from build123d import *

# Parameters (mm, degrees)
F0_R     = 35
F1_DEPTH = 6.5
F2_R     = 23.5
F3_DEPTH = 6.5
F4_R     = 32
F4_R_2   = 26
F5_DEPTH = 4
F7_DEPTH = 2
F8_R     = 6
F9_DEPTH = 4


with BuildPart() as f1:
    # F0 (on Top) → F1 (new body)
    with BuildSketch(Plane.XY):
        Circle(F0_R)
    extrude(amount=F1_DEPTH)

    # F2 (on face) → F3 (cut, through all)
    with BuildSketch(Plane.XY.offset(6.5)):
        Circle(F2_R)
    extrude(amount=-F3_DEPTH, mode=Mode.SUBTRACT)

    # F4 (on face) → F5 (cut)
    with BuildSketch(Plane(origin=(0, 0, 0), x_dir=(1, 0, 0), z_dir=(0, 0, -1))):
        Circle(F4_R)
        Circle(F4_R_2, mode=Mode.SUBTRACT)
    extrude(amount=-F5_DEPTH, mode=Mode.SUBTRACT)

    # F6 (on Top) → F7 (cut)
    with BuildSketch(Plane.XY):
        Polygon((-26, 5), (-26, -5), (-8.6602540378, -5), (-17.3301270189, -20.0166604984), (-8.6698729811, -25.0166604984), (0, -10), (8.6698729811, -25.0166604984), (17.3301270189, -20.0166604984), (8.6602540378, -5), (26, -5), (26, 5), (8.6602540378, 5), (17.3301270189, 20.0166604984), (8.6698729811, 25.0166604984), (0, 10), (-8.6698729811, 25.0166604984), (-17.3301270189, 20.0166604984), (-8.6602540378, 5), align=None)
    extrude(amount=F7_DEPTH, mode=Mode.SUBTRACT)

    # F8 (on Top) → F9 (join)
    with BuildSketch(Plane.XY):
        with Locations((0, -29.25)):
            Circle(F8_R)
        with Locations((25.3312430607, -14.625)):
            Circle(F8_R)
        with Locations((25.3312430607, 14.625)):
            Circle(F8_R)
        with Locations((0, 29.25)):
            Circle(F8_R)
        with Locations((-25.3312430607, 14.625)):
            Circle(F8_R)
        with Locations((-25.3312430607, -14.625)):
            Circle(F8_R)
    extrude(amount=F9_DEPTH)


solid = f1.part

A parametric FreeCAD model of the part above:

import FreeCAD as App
import Part
import Sketcher
Q = App.Units.Quantity


def add_polygon(sketch, points):
    """Adds a closed chain of lines whose ends are joined by coincident constraints."""
    first, n = sketch.GeometryCount, len(points)
    for a, b in zip(points, points[1:] + points[:1]):
        sketch.addGeometry(Part.LineSegment(App.Vector(*a, 0), App.Vector(*b, 0)), False)
    for i in range(n):
        sketch.addConstraint(Sketcher.Constraint("Coincident", first + i, 2, first + (i + 1) % n, 1))

doc = App.newDocument("Part")
body = doc.addObject("PartDesign::Body", "Body")

sketch1 = doc.addObject("Sketcher::SketchObject", "Sketch")
body.addObject(sketch1)
sketch1.AttachmentSupport = (doc.XY_Plane, [""])
sketch1.MapMode = "FlatFace"
sketch1.addGeometry(Part.Circle(App.Vector(0, 0, 0), App.Vector(0, 0, 1), 35), False)
sketch1.addConstraint([
    Sketcher.Constraint("Coincident", 0, 3, -1, 1),
    Sketcher.Constraint("Diameter", 0, 70.0),
])
pad1 = doc.addObject("PartDesign::Pad", "Pad")
body.addObject(pad1)
pad1.Profile = sketch1
pad1.Length = 6.5

sketch2 = doc.addObject("Sketcher::SketchObject", "Sketch001")
body.addObject(sketch2)
sketch2.AttachmentSupport = (doc.XY_Plane, [""])
sketch2.MapMode = "FlatFace"
sketch2.AttachmentOffset = App.Placement(App.Vector(0, 0, 6.5), App.Rotation())
sketch2.addGeometry(Part.Circle(App.Vector(0, 0, 0), App.Vector(0, 0, 1), 23.5), False)
sketch2.addConstraint([
    Sketcher.Constraint("Coincident", 0, 3, -1, 1),
    Sketcher.Constraint("Diameter", 0, 47.0),
])
pocket1 = doc.addObject("PartDesign::Pocket", "Pocket")
body.addObject(pocket1)
pocket1.Profile = sketch2
pocket1.Type = "ThroughAll"

sketch3 = doc.addObject("Sketcher::SketchObject", "Sketch002")
body.addObject(sketch3)
sketch3.AttachmentSupport = (doc.XY_Plane, [""])
sketch3.MapMode = "FlatFace"
sketch3.addGeometry([
    Part.Circle(App.Vector(0, 0, 0), App.Vector(0, 0, 1), 32),
    Part.Circle(App.Vector(0, 0, 0), App.Vector(0, 0, 1), 26),
], False)
sketch3.addConstraint([
    Sketcher.Constraint("Coincident", 0, 3, -1, 1),
    Sketcher.Constraint("Coincident", 1, 3, -1, 1),
    Sketcher.Constraint("Diameter", 0, 64.0),
    Sketcher.Constraint("Diameter", 1, 52.0),
])
pocket2 = doc.addObject("PartDesign::Pocket", "Pocket001")
body.addObject(pocket2)
pocket2.Profile = sketch3
pocket2.Length = 4
pocket2.Reversed = True

sketch4 = doc.addObject("Sketcher::SketchObject", "Sketch003")
body.addObject(sketch4)
sketch4.AttachmentSupport = (doc.XY_Plane, [""])
sketch4.MapMode = "FlatFace"
add_polygon(sketch4, [(-26, 5), (-26, -5), (-8.660254, -5), (-17.330127, -20.01666), (-8.669873, -25.01666), (0, -10), (8.669873, -25.01666), (17.330127, -20.01666), (8.660254, -5), (26, -5), (26, 5), (8.660254, 5), (17.330127, 20.01666), (8.669873, 25.01666), (0, 10), (-8.669873, 25.01666), (-17.330127, 20.01666), (-8.660254, 5)])
sketch4.addConstraint([
    Sketcher.Constraint("Vertical", 0),
    Sketcher.Constraint("Horizontal", 1),
    Sketcher.Constraint("Horizontal", 8),
    Sketcher.Constraint("Vertical", 9),
    Sketcher.Constraint("Horizontal", 10),
    Sketcher.Constraint("Horizontal", 17),
    Sketcher.Constraint("Symmetric", 0, 2, 9, 2, -1, 1),
    Sketcher.Constraint("Symmetric", 2, 2, 11, 2, -1, 1),
    Sketcher.Constraint("Symmetric", 3, 2, 12, 2, -1, 1),
    Sketcher.Constraint("Symmetric", 4, 2, 13, 2, -1, 1),
    Sketcher.Constraint("Symmetric", 5, 2, 14, 2, -1, 1),
    Sketcher.Constraint("Symmetric", 6, 2, 15, 2, -1, 1),
    Sketcher.Constraint("Symmetric", 7, 2, 16, 2, -1, 1),
    Sketcher.Constraint("Symmetric", 3, 2, 5, 2, -2),
    Sketcher.Constraint("Symmetric", 2, 2, 6, 2, -2),
    Sketcher.Constraint("Symmetric", 1, 2, 7, 2, -2),
    Sketcher.Constraint("PointOnObject", 4, 2, -2),
    Sketcher.Constraint("Perpendicular", 2, 3),
    Sketcher.Constraint("Perpendicular", 3, 4),
    Sketcher.Constraint("Parallel", 4, 11),
    Sketcher.Constraint("Equal", 2, 4),
    Sketcher.Constraint("DistanceY", 0, 2, 0, 1, 10.0),
    Sketcher.Constraint("Angle", 2, Q("-120 deg")),
    Sketcher.Constraint("Distance", 3, 10.0),
    Sketcher.Constraint("DistanceX", 0, 2, -1, 1, 26.0),
    Sketcher.Constraint("DistanceX", 2, 2, 5, 2, 26.0),
])
pocket3 = doc.addObject("PartDesign::Pocket", "Pocket002")
body.addObject(pocket3)
pocket3.Profile = sketch4
pocket3.Length = 2
pocket3.Reversed = True

sketch5 = doc.addObject("Sketcher::SketchObject", "Sketch004")
body.addObject(sketch5)
sketch5.AttachmentSupport = (doc.XY_Plane, [""])
sketch5.MapMode = "FlatFace"
sketch5.addGeometry([
    Part.Circle(App.Vector(0, -29.25, 0), App.Vector(0, 0, 1), 6),
    Part.Circle(App.Vector(25.331243, -14.625, 0), App.Vector(0, 0, 1), 6),
    Part.Circle(App.Vector(25.331243, 14.625, 0), App.Vector(0, 0, 1), 6),
    Part.Circle(App.Vector(0, 29.25, 0), App.Vector(0, 0, 1), 6),
    Part.Circle(App.Vector(-25.331243, 14.625, 0), App.Vector(0, 0, 1), 6),
    Part.Circle(App.Vector(-25.331243, -14.625, 0), App.Vector(0, 0, 1), 6),
], False)
sketch5.addConstraint([
    Sketcher.Constraint("Equal", 0, 1),
    Sketcher.Constraint("Equal", 1, 2),
    Sketcher.Constraint("Equal", 2, 3),
    Sketcher.Constraint("Equal", 3, 4),
    Sketcher.Constraint("Equal", 4, 5),
    Sketcher.Constraint("Symmetric", 0, 3, 3, 3, -1, 1),
    Sketcher.Constraint("Symmetric", 1, 3, 4, 3, -1, 1),
    Sketcher.Constraint("Symmetric", 2, 3, 5, 3, -1, 1),
    Sketcher.Constraint("Symmetric", 2, 3, 4, 3, -2),
    Sketcher.Constraint("PointOnObject", 0, 3, -2),
    Sketcher.Constraint("Diameter", 0, 12.0),
    Sketcher.Constraint("DistanceY", 0, 3, 3, 3, 58.5),
    Sketcher.Constraint("DistanceY", 1, 3, 2, 3, 29.25),
    Sketcher.Constraint("DistanceX", -1, 1, 1, 3, 25.331243),
])
pad2 = doc.addObject("PartDesign::Pad", "Pad001")
body.addObject(pad2)
pad2.Profile = sketch5
pad2.Length = 4

doc.recompute()
